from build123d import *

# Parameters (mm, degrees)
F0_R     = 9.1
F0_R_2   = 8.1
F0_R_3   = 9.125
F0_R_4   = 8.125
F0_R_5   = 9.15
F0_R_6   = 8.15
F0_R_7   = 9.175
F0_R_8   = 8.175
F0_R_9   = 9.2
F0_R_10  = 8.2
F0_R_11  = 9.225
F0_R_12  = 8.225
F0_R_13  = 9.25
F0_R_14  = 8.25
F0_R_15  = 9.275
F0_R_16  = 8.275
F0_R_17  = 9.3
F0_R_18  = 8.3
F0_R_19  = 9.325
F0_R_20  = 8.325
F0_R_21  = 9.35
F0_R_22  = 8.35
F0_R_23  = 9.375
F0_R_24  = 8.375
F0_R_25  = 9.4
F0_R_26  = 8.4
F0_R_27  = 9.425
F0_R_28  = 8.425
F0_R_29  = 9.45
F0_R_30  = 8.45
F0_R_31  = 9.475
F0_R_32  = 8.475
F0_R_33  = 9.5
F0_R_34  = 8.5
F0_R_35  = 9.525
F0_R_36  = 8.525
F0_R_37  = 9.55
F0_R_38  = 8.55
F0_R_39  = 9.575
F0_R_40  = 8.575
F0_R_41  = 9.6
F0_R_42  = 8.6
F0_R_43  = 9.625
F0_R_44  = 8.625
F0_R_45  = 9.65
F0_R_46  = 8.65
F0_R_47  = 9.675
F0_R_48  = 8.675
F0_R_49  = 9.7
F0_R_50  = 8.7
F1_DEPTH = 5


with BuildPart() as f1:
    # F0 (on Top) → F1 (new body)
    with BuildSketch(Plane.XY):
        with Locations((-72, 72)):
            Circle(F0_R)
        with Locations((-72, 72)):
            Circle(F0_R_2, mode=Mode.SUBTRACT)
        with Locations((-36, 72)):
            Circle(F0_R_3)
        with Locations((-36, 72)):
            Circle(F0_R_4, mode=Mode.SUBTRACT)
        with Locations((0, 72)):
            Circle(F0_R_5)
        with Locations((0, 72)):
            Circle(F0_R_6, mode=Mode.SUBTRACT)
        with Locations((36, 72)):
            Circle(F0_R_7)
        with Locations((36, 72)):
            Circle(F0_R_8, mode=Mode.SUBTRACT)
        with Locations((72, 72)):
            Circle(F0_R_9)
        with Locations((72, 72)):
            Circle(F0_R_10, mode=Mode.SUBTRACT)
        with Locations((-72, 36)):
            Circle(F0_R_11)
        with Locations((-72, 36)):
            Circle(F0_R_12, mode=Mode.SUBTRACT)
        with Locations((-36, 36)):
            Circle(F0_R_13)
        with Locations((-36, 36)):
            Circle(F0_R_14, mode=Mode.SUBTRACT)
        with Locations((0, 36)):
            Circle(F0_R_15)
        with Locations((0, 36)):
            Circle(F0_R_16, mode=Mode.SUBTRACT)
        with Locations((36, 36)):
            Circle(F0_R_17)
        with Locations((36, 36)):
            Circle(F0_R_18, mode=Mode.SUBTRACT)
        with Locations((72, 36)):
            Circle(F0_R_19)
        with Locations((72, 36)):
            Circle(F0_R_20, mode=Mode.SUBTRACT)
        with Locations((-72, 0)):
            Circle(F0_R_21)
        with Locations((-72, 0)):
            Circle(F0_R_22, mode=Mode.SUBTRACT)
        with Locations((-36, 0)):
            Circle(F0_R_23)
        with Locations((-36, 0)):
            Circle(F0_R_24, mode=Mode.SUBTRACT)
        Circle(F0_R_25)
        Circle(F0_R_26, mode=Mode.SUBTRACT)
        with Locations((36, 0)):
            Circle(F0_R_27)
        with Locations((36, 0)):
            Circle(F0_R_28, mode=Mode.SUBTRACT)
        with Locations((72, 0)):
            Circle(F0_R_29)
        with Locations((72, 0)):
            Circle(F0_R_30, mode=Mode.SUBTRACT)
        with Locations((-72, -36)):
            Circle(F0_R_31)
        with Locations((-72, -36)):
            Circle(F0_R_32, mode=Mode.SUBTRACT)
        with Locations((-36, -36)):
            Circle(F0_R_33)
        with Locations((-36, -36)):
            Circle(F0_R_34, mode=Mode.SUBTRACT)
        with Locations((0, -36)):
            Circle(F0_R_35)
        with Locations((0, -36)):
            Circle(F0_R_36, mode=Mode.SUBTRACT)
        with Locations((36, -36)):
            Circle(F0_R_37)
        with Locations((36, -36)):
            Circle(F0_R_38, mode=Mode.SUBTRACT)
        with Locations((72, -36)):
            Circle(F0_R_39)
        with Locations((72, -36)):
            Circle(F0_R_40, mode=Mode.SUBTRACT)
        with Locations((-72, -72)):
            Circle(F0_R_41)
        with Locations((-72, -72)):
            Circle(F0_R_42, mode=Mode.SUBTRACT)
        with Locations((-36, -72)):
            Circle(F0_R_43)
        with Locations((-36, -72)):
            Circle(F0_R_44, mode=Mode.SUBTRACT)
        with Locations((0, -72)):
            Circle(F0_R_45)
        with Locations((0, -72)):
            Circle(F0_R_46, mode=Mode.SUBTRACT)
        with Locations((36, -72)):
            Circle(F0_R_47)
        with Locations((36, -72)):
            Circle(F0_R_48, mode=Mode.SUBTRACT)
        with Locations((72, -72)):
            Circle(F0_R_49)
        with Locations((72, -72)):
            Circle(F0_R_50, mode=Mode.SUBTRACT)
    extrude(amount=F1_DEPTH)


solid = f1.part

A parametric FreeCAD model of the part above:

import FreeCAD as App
import Part
import Sketcher

V = App.Vector
Q = App.Units.Quantity

doc = App.newDocument("Part")
body = doc.addObject("PartDesign::Body", "Body")
body.AllowCompound = True

# Sketch on XY plane
sketch1 = body.newObject("Sketcher::SketchObject", "Sketch")
sketch1.AttachmentSupport = (doc.getObject("XY_Plane"), [""])
sketch1.MapMode = "FlatFace"
sketch1.addGeometry([
    Part.Circle(V(-72, 72, 0), V(0, 0, 1), 9),  # 0
    Part.Circle(V(-72, 72, 0), V(0, 0, 1), 8),  # 1
    Part.Circle(V(-36, 72, 0), V(0, 0, 1), 9),  # 2
    Part.Circle(V(-36, 72, 0), V(0, 0, 1), 8),  # 3
    Part.Circle(V(0, 72, 0), V(0, 0, 1), 9),  # 4
    Part.Circle(V(0, 72, 0), V(0, 0, 1), 8),  # 5
    Part.Circle(V(36, 72, 0), V(0, 0, 1), 9),  # 6
    Part.Circle(V(36, 72, 0), V(0, 0, 1), 8),  # 7
    Part.Circle(V(72, 72, 0), V(0, 0, 1), 9),  # 8
    Part.Circle(V(72, 72, 0), V(0, 0, 1), 8),  # 9
    Part.Circle(V(-72, 36, 0), V(0, 0, 1), 9),  # 10
    Part.Circle(V(-72, 36, 0), V(0, 0, 1), 8),  # 11
    Part.Circle(V(-36, 36, 0), V(0, 0, 1), 9),  # 12
    Part.Circle(V(-36, 36, 0), V(0, 0, 1), 8),  # 13
    Part.Circle(V(0, 36, 0), V(0, 0, 1), 9),  # 14
    Part.Circle(V(0, 36, 0), V(0, 0, 1), 8),  # 15
    Part.Circle(V(36, 36, 0), V(0, 0, 1), 9),  # 16
    Part.Circle(V(36, 36, 0), V(0, 0, 1), 8),  # 17
    Part.Circle(V(72, 36, 0), V(0, 0, 1), 9),  # 18
    Part.Circle(V(72, 36, 0), V(0, 0, 1), 8),  # 19
    Part.Circle(V(-72, 0, 0), V(0, 0, 1), 9),  # 20
    Part.Circle(V(-72, 0, 0), V(0, 0, 1), 8),  # 21
    Part.Circle(V(-36, 0, 0), V(0, 0, 1), 9),  # 22
    Part.Circle(V(-36, 0, 0), V(0, 0, 1), 8),  # 23
    Part.Circle(V(0, 0, 0), V(0, 0, 1), 9),  # 24
    Part.Circle(V(0, 0, 0), V(0, 0, 1), 8),  # 25
    Part.Circle(V(36, 0, 0), V(0, 0, 1), 9),  # 26
    Part.Circle(V(36, 0, 0), V(0, 0, 1), 8),  # 27
    Part.Circle(V(72, 0, 0), V(0, 0, 1), 9),  # 28
    Part.Circle(V(72, 0, 0), V(0, 0, 1), 8),  # 29
    Part.Circle(V(-72, -36, 0), V(0, 0, 1), 9),  # 30
    Part.Circle(V(-72, -36, 0), V(0, 0, 1), 8),  # 31
    Part.Circle(V(-36, -36, 0), V(0, 0, 1), 10),  # 32
    Part.Circle(V(-36, -36, 0), V(0, 0, 1), 8),  # 33
    Part.Circle(V(0, -36, 0), V(0, 0, 1), 10),  # 34
    Part.Circle(V(0, -36, 0), V(0, 0, 1), 9),  # 35
    Part.Circle(V(36, -36, 0), V(0, 0, 1), 10),  # 36
    Part.Circle(V(36, -36, 0), V(0, 0, 1), 9),  # 37
    Part.Circle(V(72, -36, 0), V(0, 0, 1), 10),  # 38
    Part.Circle(V(72, -36, 0), V(0, 0, 1), 9),  # 39
    Part.Circle(V(-72, -72, 0), V(0, 0, 1), 10),  # 40
    Part.Circle(V(-72, -72, 0), V(0, 0, 1), 9),  # 41
    Part.Circle(V(-36, -72, 0), V(0, 0, 1), 10),  # 42
    Part.Circle(V(-36, -72, 0), V(0, 0, 1), 9),  # 43
    Part.Circle(V(0, -72, 0), V(0, 0, 1), 10),  # 44
    Part.Circle(V(0, -72, 0), V(0, 0, 1), 9),  # 45
    Part.Circle(V(36, -72, 0), V(0, 0, 1), 10),  # 46
    Part.Circle(V(36, -72, 0), V(0, 0, 1), 9),  # 47
    Part.Circle(V(72, -72, 0), V(0, 0, 1), 10),  # 48
    Part.Circle(V(72, -72, 0), V(0, 0, 1), 9),  # 49
], False)
sketch1.addConstraint([
    Sketcher.Constraint("Coincident", 24, 3, -1, 1),
    Sketcher.Constraint("Coincident", 25, 3, -1, 1),
    Sketcher.Constraint("Coincident", 1, 3, 0, 3),
    Sketcher.Constraint("Coincident", 3, 3, 2, 3),
    Sketcher.Constraint("Coincident", 5, 3, 4, 3),
    Sketcher.Constraint("Coincident", 7, 3, 6, 3),
    Sketcher.Constraint("Coincident", 9, 3, 8, 3),
    Sketcher.Constraint("Coincident", 11, 3, 10, 3),
    Sketcher.Constraint("Coincident", 13, 3, 12, 3),
    Sketcher.Constraint("Coincident", 15, 3, 14, 3),
    Sketcher.Constraint("Coincident", 17, 3, 16, 3),
    Sketcher.Constraint("Coincident", 19, 3, 18, 3),
    Sketcher.Constraint("Coincident", 21, 3, 20, 3),
    Sketcher.Constraint("Coincident", 23, 3, 22, 3),
    Sketcher.Constraint("Coincident", 27, 3, 26, 3),
    Sketcher.Constraint("Coincident", 29, 3, 28, 3),
    Sketcher.Constraint("Coincident", 31, 3, 30, 3),
    Sketcher.Constraint("Coincident", 33, 3, 32, 3),
    Sketcher.Constraint("Coincident", 35, 3, 34, 3),
    Sketcher.Constraint("Coincident", 37, 3, 36, 3),
    Sketcher.Constraint("Coincident", 39, 3, 38, 3),
    Sketcher.Constraint("Coincident", 41, 3, 40, 3),
    Sketcher.Constraint("Coincident", 43, 3, 42, 3),
    Sketcher.Constraint("Coincident", 45, 3, 44, 3),
    Sketcher.Constraint("Coincident", 47, 3, 46, 3),
    Sketcher.Constraint("Coincident", 49, 3, 48, 3),
    Sketcher.Constraint("Symmetric", 22, 3, 26, 3, -1, 1),
    Sketcher.Constraint("Symmetric", 20, 3, 28, 3, -1, 1),
    Sketcher.Constraint("Symmetric", 18, 3, 30, 3, -1, 1),
    Sketcher.Constraint("Symmetric", 16, 3, 32, 3, -1, 1),
    Sketcher.Constraint("Symmetric", 14, 3, 34, 3, -1, 1),
    Sketcher.Constraint("Symmetric", 12, 3, 36, 3, -1, 1),
    Sketcher.Constraint("Symmetric", 10, 3, 38, 3, -1, 1),
    Sketcher.Constraint("Symmetric", 8, 3, 40, 3, -1, 1),
    Sketcher.Constraint("Symmetric", 6, 3, 42, 3, -1, 1),
    Sketcher.Constraint("Symmetric", 4, 3, 44, 3, -1, 1),
    Sketcher.Constraint("Symmetric", 2, 3, 46, 3, -1, 1),
    Sketcher.Constraint("Symmetric", 0, 3, 48, 3, -1, 1),
    Sketcher.Constraint("Symmetric", 2, 3, 6, 3, -2),
    Sketcher.Constraint("Symmetric", 0, 3, 8, 3, -2),
    Sketcher.Constraint("Symmetric", 12, 3, 16, 3, -2),
    Sketcher.Constraint("Symmetric", 10, 3, 18, 3, -2),
    Sketcher.Constraint("PointOnObject", 4, 3, -2),
    Sketcher.Constraint("PointOnObject", 14, 3, -2),
    Sketcher.Constraint("PointOnObject", 20, 3, -1),
    Sketcher.Constraint("PointOnObject", 22, 3, -1),
    Sketcher.Constraint("Horizontal", 1, 3, 2, 3),
    Sketcher.Constraint("Horizontal", 3, 3, 4, 3),
    Sketcher.Constraint("Horizontal", 11, 3, 12, 3),
    Sketcher.Constraint("Horizontal", 13, 3, 14, 3),
    Sketcher.Constraint("Vertical", 1, 3, 10, 3),
    Sketcher.Constraint("Vertical", 3, 3, 12, 3),
    Sketcher.Constraint("Vertical", 11, 3, 20, 3),
    Sketcher.Constraint("Vertical", 13, 3, 22, 3),
    Sketcher.Constraint("Diameter", 32, Q("19 mm")),
    Sketcher.Constraint("Diameter", 33, Q("17 mm")),
    Sketcher.Constraint("Diameter", 0, Q("18.2 mm")),
    Sketcher.Constraint("Diameter", 1, Q("16.2 mm")),
    Sketcher.Constraint("Diameter", 4, Q("18.3 mm")),
    Sketcher.Constraint("Diameter", 5, Q("16.3 mm")),
    Sketcher.Constraint("Diameter", 8, Q("18.4 mm")),
    Sketcher.Constraint("Diameter", 9, Q("16.4 mm")),
    Sketcher.Constraint("Diameter", 12, Q("18.5 mm")),
    Sketcher.Constraint("Diameter", 13, Q("16.5 mm")),
    Sketcher.Constraint("Diameter", 16, Q("18.6 mm")),
    Sketcher.Constraint("Diameter", 17, Q("16.6 mm")),
    Sketcher.Constraint("Diameter", 20, Q("18.7 mm")),
    Sketcher.Constraint("Diameter", 21, Q("16.7 mm")),
    Sketcher.Constraint("Diameter", 24, Q("18.8 mm")),
    Sketcher.Constraint("Diameter", 25, Q("16.8 mm")),
    Sketcher.Constraint("Diameter", 28, Q("18.9 mm")),
    Sketcher.Constraint("Diameter", 29, Q("16.9 mm")),
    Sketcher.Constraint("Diameter", 36, Q("19.1 mm")),
    Sketcher.Constraint("Diameter", 37, Q("17.1 mm")),
    Sketcher.Constraint("Diameter", 40, Q("19.2 mm")),
    Sketcher.Constraint("Diameter", 41, Q("17.2 mm")),
    Sketcher.Constraint("Diameter", 44, Q("19.3 mm")),
    Sketcher.Constraint("Diameter", 45, Q("17.3 mm")),
    Sketcher.Constraint("Diameter", 48, Q("19.4 mm")),
    Sketcher.Constraint("Diameter", 49, Q("17.4 mm")),
    Sketcher.Constraint("Diameter", 2, Q("18.25 mm")),
    Sketcher.Constraint("Diameter", 3, Q("16.25 mm")),
    Sketcher.Constraint("Diameter", 6, Q("18.35 mm")),
    Sketcher.Constraint("Diameter", 7, Q("16.35 mm")),
    Sketcher.Constraint("Diameter", 10, Q("18.45 mm")),
    Sketcher.Constraint("Diameter", 11, Q("16.45 mm")),
    Sketcher.Constraint("Diameter", 14, Q("18.55 mm")),
    Sketcher.Constraint("Diameter", 15, Q("16.55 mm")),
    Sketcher.Constraint("Diameter", 18, Q("18.65 mm")),
    Sketcher.Constraint("Diameter", 19, Q("16.65 mm")),
    Sketcher.Constraint("Diameter", 22, Q("18.75 mm")),
    Sketcher.Constraint("Diameter", 23, Q("16.75 mm")),
    Sketcher.Constraint("Diameter", 26, Q("18.85 mm")),
    Sketcher.Constraint("Diameter", 27, Q("16.85 mm")),
    Sketcher.Constraint("Diameter", 30, Q("18.95 mm")),
    Sketcher.Constraint("Diameter", 31, Q("16.95 mm")),
    Sketcher.Constraint("Diameter", 34, Q("19.05 mm")),
    Sketcher.Constraint("Diameter", 35, Q("17.05 mm")),
    Sketcher.Constraint("Diameter", 38, Q("19.15 mm")),
    Sketcher.Constraint("Diameter", 39, Q("17.15 mm")),
    Sketcher.Constraint("Diameter", 42, Q("19.25 mm")),
    Sketcher.Constraint("Diameter", 43, Q("17.25 mm")),
    Sketcher.Constraint("Diameter", 46, Q("19.35 mm")),
    Sketcher.Constraint("Diameter", 47, Q("17.35 mm")),
    Sketcher.Constraint("DistanceX", 0, 3, -1, 1, Q("72 mm")),
    Sketcher.Constraint("DistanceY", -1, 1, 0, 3, Q("72 mm")),
    Sketcher.Constraint("DistanceX", 2, 3, -1, 1, Q("36 mm")),
    Sketcher.Constraint("DistanceY", -1, 1, 10, 3, Q("36 mm")),
])
pad1 = body.newObject("PartDesign::Pad", "Pad")
pad1.Profile = sketch1
pad1.Length = 5

doc.recompute()
